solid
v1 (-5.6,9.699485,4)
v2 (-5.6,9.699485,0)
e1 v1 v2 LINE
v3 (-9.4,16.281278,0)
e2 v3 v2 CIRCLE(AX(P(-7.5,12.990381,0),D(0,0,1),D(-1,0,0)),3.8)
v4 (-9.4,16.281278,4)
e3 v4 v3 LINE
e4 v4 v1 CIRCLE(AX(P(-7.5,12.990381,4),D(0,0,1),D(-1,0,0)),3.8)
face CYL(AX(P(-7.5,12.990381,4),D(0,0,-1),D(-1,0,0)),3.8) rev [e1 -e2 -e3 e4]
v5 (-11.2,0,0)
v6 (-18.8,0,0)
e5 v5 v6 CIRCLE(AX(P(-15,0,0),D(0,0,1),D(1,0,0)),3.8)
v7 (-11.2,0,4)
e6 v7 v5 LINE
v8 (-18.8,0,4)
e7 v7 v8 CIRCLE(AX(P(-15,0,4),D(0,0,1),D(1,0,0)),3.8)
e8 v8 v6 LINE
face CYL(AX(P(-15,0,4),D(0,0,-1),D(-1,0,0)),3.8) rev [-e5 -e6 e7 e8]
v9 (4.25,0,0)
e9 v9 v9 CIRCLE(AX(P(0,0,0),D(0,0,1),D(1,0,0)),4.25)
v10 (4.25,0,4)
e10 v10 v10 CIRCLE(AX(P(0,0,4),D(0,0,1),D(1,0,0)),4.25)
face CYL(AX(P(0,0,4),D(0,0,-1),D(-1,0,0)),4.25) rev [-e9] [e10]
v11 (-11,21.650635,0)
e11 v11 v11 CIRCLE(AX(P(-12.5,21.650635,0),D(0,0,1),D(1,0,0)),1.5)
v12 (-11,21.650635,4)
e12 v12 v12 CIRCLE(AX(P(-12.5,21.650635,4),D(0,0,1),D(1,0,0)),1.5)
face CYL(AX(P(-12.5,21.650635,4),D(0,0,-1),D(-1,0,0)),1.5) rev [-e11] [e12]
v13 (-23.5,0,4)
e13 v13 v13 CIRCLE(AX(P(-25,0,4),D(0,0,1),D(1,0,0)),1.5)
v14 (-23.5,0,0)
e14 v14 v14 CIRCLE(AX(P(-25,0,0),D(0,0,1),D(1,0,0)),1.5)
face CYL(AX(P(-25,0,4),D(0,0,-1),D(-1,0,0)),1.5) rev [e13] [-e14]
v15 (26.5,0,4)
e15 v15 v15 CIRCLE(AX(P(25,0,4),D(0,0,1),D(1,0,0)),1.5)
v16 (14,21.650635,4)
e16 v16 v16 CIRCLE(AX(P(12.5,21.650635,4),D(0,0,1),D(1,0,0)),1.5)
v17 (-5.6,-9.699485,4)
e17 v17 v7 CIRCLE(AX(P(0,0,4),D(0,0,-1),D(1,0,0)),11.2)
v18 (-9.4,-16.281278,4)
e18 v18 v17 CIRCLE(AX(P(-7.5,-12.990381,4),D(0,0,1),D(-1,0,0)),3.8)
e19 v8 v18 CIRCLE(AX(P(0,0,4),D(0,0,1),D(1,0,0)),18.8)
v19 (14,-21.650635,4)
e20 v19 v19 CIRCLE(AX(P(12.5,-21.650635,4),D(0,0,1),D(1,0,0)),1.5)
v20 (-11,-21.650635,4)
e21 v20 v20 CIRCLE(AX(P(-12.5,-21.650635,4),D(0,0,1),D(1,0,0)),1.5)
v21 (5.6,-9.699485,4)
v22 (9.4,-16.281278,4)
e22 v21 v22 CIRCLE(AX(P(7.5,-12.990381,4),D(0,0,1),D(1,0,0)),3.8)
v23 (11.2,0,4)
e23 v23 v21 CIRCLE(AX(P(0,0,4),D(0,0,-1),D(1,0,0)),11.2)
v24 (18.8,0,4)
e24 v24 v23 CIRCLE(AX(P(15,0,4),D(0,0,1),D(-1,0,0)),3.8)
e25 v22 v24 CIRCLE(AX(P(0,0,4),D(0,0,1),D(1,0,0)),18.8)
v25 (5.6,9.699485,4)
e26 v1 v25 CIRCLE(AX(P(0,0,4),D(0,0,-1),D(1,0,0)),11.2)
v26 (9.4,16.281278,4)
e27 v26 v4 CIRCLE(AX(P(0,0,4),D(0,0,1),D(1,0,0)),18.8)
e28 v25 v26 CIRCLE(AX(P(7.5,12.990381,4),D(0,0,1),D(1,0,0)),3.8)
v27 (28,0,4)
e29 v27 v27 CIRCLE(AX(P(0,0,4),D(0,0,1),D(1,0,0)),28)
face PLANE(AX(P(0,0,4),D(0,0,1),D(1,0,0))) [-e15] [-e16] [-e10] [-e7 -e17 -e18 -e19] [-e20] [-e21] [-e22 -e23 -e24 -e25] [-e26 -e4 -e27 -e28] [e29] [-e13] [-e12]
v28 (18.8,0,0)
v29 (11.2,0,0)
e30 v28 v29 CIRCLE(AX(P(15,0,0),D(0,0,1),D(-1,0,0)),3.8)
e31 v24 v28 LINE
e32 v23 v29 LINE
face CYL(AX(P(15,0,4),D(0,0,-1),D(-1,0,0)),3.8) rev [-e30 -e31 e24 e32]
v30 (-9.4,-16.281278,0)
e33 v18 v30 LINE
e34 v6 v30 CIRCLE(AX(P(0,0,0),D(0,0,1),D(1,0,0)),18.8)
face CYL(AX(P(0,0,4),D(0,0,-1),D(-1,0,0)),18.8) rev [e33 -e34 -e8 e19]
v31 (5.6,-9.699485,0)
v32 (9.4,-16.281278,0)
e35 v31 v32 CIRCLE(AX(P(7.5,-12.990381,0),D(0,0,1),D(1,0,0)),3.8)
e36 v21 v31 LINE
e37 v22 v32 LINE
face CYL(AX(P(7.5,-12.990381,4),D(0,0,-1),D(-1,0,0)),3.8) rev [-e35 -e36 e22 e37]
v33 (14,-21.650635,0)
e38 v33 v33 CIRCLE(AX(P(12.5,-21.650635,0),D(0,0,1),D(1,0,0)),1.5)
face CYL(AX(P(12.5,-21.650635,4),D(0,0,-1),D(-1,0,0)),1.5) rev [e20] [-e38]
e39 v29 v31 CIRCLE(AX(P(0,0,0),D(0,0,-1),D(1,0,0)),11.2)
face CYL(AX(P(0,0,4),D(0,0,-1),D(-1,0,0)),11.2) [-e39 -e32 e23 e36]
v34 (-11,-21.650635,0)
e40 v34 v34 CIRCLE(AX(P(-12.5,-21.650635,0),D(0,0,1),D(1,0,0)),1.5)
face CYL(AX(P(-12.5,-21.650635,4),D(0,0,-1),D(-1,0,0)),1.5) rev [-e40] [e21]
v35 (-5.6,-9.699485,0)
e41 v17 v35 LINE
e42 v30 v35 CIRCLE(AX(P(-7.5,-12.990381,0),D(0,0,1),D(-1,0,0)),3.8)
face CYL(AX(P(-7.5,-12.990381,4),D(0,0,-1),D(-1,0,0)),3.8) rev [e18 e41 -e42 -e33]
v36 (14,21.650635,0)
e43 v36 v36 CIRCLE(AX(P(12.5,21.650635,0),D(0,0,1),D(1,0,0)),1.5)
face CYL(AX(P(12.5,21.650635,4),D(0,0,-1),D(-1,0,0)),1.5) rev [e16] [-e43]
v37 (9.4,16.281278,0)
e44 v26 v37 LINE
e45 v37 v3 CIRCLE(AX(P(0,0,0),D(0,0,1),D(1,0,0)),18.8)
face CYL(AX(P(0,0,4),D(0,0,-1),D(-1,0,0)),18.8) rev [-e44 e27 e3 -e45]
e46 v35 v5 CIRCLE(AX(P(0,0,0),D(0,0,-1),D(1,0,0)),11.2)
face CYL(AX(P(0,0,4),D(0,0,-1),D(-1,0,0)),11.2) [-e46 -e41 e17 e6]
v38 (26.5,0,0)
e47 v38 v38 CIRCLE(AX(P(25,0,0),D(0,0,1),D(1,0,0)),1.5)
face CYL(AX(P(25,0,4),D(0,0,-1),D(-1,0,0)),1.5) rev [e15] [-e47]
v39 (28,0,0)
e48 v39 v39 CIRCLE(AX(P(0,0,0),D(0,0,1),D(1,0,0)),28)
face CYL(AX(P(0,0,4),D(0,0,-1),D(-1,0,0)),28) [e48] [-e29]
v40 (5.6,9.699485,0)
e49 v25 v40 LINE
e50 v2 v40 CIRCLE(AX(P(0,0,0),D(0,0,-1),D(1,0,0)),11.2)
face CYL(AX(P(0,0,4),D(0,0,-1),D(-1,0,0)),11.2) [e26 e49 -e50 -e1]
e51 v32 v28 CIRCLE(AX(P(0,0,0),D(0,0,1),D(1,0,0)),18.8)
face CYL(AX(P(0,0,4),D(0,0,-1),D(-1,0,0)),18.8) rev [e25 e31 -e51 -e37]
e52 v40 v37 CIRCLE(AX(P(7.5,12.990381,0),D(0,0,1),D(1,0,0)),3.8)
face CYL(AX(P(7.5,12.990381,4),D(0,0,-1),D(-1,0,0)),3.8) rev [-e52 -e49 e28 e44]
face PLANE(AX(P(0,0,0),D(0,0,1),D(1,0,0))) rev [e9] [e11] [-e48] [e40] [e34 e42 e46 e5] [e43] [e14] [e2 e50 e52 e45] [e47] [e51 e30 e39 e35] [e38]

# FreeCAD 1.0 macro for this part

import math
import FreeCAD as App
import Part
import Sketcher

doc = App.newDocument("Part")
body = doc.addObject("PartDesign::Body", "Body")

# Sketch on XY plane
sketch1 = body.newObject("Sketcher::SketchObject", "Sketch")
sketch1.AttachmentSupport = (doc.getObject("XY_Plane"), [""])
sketch1.MapMode = "FlatFace"
sketch1.addGeometry([
    Part.Circle(App.Vector(0, 0, 0), App.Vector(0, 0, 1), 28),  # 0
    Part.Circle(App.Vector(-12.5, -21.7, 0), App.Vector(0, 0, 1), 1.5),  # 1
    Part.ArcOfCircle(Part.Circle(App.Vector(-15, 0, 0), App.Vector(0, 0, 1), 3.8), math.radians(0), math.radians(180)),  # 2
    Part.ArcOfCircle(Part.Circle(App.Vector(0, 0, 0), App.Vector(0, 0, 1), 11.2), math.radians(-180), math.radians(-120)),  # 3
    Part.ArcOfCircle(Part.Circle(App.Vector(-7.5, -13, 0), App.Vector(0, 0, 1), 3.8), math.radians(-120), math.radians(60)),  # 4
    Part.ArcOfCircle(Part.Circle(App.Vector(0, 0, 0), App.Vector(0, 0, 1), 18.8), math.radians(180), math.radians(240)),  # 5
    Part.Circle(App.Vector(12.5, -21.7, 0), App.Vector(0, 0, 1), 1.5),  # 6
    Part.ArcOfCircle(Part.Circle(App.Vector(0, 0, 0), App.Vector(0, 0, 1), 11.2), math.radians(-60), math.radians(0)),  # 7
    Part.ArcOfCircle(Part.Circle(App.Vector(15, 0, 0), App.Vector(0, 0, 1), 3.8), math.radians(0), math.radians(180)),  # 8
    Part.ArcOfCircle(Part.Circle(App.Vector(0, 0, 0), App.Vector(0, 0, 1), 18.8), math.radians(-60), math.radians(0)),  # 9
    Part.ArcOfCircle(Part.Circle(App.Vector(7.5, -13, 0), App.Vector(0, 0, 1), 3.8), math.radians(120), math.radians(300)),  # 10
    Part.Circle(App.Vector(-25, 0, 0), App.Vector(0, 0, 1), 1.5),  # 11
    Part.Circle(App.Vector(-12.5, 21.7, 0), App.Vector(0, 0, 1), 1.5),  # 12
    Part.Circle(App.Vector(0, 0, 0), App.Vector(0, 0, 1), 4.2),  # 13
    Part.Circle(App.Vector(25, 0, 0), App.Vector(0, 0, 1), 1.5),  # 14
    Part.ArcOfCircle(Part.Circle(App.Vector(7.5, 13, 0), App.Vector(0, 0, 1), 3.8), math.radians(-120), math.radians(60)),  # 15
    Part.ArcOfCircle(Part.Circle(App.Vector(0, 0, 0), App.Vector(0, 0, 1), 11.2), math.radians(60), math.radians(120)),  # 16
    Part.ArcOfCircle(Part.Circle(App.Vector(-7.5, 13, 0), App.Vector(0, 0, 1), 3.8), math.radians(120), math.radians(300)),  # 17
    Part.ArcOfCircle(Part.Circle(App.Vector(0, 0, 0), App.Vector(0, 0, 1), 18.8), math.radians(60), math.radians(120)),  # 18
    Part.Circle(App.Vector(12.5, 21.7, 0), App.Vector(0, 0, 1), 1.5),  # 19
], False)
sketch1.addConstraint([
    Sketcher.Constraint("Tangent", 2, 1, 3, 1),
    Sketcher.Constraint("Tangent", 3, 2, 4, 2),
    Sketcher.Constraint("Tangent", 4, 1, 5, 2),
    Sketcher.Constraint("Tangent", 5, 1, 2, 2),
    Sketcher.Constraint("Tangent", 7, 2, 8, 2),
    Sketcher.Constraint("Tangent", 8, 1, 9, 2),
    Sketcher.Constraint("Tangent", 9, 1, 10, 2),
    Sketcher.Constraint("Tangent", 10, 1, 7, 1),
    Sketcher.Constraint("Tangent", 15, 1, 16, 1),
    Sketcher.Constraint("Tangent", 16, 2, 17, 2),
    Sketcher.Constraint("Tangent", 17, 1, 18, 2),
    Sketcher.Constraint("Tangent", 18, 1, 15, 2),
    Sketcher.Constraint("Coincident", 0, 3, -1, 1),
    Sketcher.Constraint("Coincident", 3, 3, -1, 1),
    Sketcher.Constraint("Coincident", 5, 3, -1, 1),
    Sketcher.Constraint("Coincident", 7, 3, -1, 1),
    Sketcher.Constraint("Coincident", 9, 3, -1, 1),
    Sketcher.Constraint("Coincident", 13, 3, -1, 1),
    Sketcher.Constraint("Coincident", 16, 3, -1, 1),
    Sketcher.Constraint("Coincident", 18, 3, -1, 1),
    Sketcher.Constraint("Equal", 1, 6),
    Sketcher.Constraint("Equal", 3, 7),
    Sketcher.Constraint("Equal", 4, 8),
    Sketcher.Constraint("Equal", 6, 11),
    Sketcher.Constraint("Equal", 11, 12),
    Sketcher.Constraint("Equal", 12, 14),
    Sketcher.Constraint("Equal", 10, 15),
    Sketcher.Constraint("Equal", 7, 16),
    Sketcher.Constraint("Equal", 14, 19),
    Sketcher.Constraint("Symmetric", 6, 3, 12, 3, -1, 1),
    Sketcher.Constraint("Symmetric", 11, 3, 14, 3, -1, 1),
    Sketcher.Constraint("Symmetric", 1, 3, 19, 3, -1, 1),
    Sketcher.Constraint("Symmetric", 1, 3, 6, 3, -2),
    Sketcher.Constraint("PointOnObject", 2, 3, -1),
    Sketcher.Constraint("PointOnObject", 8, 3, -1),
    Sketcher.Constraint("PointOnObject", 11, 3, -1),
    Sketcher.Constraint("Horizontal", 4, 3, 10, 3),
    Sketcher.Constraint("Horizontal", 15, 3, 17, 3),
    Sketcher.Constraint("Vertical", 10, 3, 15, 3),
    Sketcher.Constraint("Diameter", 0, 56.0),
    Sketcher.Constraint("Diameter", 1, 3.0),
    Sketcher.Constraint("Diameter", 13, 8.5),
    Sketcher.Constraint("Radius", 2, 3.8),
    Sketcher.Constraint("Radius", 3, 11.2),
    Sketcher.Constraint("DistanceX", 11, 3, -1, 1, 25.0),
    Sketcher.Constraint("DistanceX", 1, 3, 4, 3, 5.0),
    Sketcher.Constraint("DistanceX", 4, 3, 6, 3, 20.0),
    Sketcher.Constraint("DistanceY", 1, 3, -1, 1, 21.650635),
])
pad1 = body.newObject("PartDesign::Pad", "Pad")
pad1.Profile = sketch1
pad1.Length = 4

doc.recompute()
